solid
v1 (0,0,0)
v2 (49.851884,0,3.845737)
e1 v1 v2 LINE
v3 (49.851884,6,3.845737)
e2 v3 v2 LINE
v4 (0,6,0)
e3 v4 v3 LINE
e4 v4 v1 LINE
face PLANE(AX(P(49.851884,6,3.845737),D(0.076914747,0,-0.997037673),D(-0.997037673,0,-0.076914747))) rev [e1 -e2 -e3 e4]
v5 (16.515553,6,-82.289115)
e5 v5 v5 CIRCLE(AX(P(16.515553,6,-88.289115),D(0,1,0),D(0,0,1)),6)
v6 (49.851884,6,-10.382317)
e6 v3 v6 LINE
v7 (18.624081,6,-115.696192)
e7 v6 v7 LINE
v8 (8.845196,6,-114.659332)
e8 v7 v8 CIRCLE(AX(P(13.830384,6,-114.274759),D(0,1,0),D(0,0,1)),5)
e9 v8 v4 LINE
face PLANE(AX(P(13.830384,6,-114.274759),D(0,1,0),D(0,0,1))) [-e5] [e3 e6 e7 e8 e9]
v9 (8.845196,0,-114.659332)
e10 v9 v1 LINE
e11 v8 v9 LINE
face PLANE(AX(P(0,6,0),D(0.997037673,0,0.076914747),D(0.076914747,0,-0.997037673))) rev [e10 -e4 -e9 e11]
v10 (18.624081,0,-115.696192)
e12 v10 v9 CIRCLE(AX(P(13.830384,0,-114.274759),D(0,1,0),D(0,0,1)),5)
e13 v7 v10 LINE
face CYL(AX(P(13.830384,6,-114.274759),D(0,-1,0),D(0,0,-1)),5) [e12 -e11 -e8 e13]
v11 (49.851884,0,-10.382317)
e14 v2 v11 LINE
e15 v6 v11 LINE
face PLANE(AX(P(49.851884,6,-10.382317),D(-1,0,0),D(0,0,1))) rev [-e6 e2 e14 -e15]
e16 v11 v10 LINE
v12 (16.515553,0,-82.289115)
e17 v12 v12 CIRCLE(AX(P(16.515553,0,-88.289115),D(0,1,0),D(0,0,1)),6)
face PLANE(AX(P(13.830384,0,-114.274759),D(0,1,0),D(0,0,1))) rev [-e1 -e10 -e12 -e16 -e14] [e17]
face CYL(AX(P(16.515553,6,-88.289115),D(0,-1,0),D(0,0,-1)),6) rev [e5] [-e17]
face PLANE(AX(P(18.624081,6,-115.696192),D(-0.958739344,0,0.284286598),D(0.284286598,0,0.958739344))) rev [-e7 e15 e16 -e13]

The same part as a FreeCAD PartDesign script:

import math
import FreeCAD as App
import Part
import Sketcher
Q = App.Units.Quantity

doc = App.newDocument("Part")
params = doc.addObject("Spreadsheet::Sheet", "Params")
for row, (alias, value) in enumerate([
    ("sketch1_diameter", "12 mm"),
    ("sketch1_radius", "5 mm"),
    ("sketch1_length", "115 mm"),
    ("sketch1_length2", "50 mm"),
    ("pad1_length", "6 mm"),
], start=1):
    params.set(f"A{row}", alias)
    params.set(f"B{row}", "=" + value)
    params.setAlias(f"B{row}", alias)

body = doc.addObject("PartDesign::Body", "Body")

# Sketch on XZ plane
sketch1 = body.newObject("Sketcher::SketchObject", "Sketch")
sketch1.AttachmentSupport = (doc.getObject("XZ_Plane"), [""])
sketch1.MapMode = "FlatFace"
sketch1.addGeometry([
    Part.LineSegment(App.Vector(9, -115, 0), App.Vector(0, 0, 0)),  # 0
    Part.LineSegment(App.Vector(0, 0, 0), App.Vector(50, 4, 0)),  # 1
    Part.LineSegment(App.Vector(50, 4, 0), App.Vector(50, -10, 0)),  # 2
    Part.LineSegment(App.Vector(50, -10, 0), App.Vector(19, -116, 0)),  # 3
    Part.ArcOfCircle(Part.Circle(App.Vector(14, -114, 0), App.Vector(0, 0, 1), 5), math.radians(-176), math.radians(-17)),  # 4
    Part.Circle(App.Vector(17, -88, 0), App.Vector(0, 0, 1), 6),  # 5
], False)
sketch1.addConstraint([
    Sketcher.Constraint("Coincident", 0, 2, 1, 1),
    Sketcher.Constraint("Coincident", 1, 2, 2, 1),
    Sketcher.Constraint("Coincident", 2, 2, 3, 1),
    Sketcher.Constraint("Tangent", 3, 2, 4, 2),
    Sketcher.Constraint("Tangent", 4, 1, 0, 1),
    Sketcher.Constraint("Vertical", 2),
    Sketcher.Constraint("Coincident", 0, 2, -1, 1),
    Sketcher.Constraint("Perpendicular", 0, 1),
    Sketcher.Constraint("Diameter", 5, Q("12 mm")),
    Sketcher.Constraint("Radius", 4, Q("5 mm")),
    Sketcher.Constraint("Distance", 0, Q("115 mm")),
    Sketcher.Constraint("Distance", 1, Q("50 mm")),
    Sketcher.Constraint("Distance", 3, Q("109.846201 mm")),
    Sketcher.Constraint("DistanceX", 4, 3, 1, 2, Q("36.021499 mm")),
    Sketcher.Constraint("DistanceX", 4, 3, 5, 3, Q("2.685169 mm")),
    Sketcher.Constraint("DistanceY", 5, 3, -1, 1, Q("88.289115 mm")),
])
sketch1.setExpression("Constraints[8]", "Params.sketch1_diameter")
sketch1.setExpression("Constraints[9]", "Params.sketch1_radius")
sketch1.setExpression("Constraints[10]", "Params.sketch1_length")
sketch1.setExpression("Constraints[11]", "Params.sketch1_length2")
pad1 = body.newObject("PartDesign::Pad", "Pad")
pad1.Profile = sketch1
pad1.setExpression("Length", "Params.pad1_length")
pad1.Reversed = True

doc.recompute()
